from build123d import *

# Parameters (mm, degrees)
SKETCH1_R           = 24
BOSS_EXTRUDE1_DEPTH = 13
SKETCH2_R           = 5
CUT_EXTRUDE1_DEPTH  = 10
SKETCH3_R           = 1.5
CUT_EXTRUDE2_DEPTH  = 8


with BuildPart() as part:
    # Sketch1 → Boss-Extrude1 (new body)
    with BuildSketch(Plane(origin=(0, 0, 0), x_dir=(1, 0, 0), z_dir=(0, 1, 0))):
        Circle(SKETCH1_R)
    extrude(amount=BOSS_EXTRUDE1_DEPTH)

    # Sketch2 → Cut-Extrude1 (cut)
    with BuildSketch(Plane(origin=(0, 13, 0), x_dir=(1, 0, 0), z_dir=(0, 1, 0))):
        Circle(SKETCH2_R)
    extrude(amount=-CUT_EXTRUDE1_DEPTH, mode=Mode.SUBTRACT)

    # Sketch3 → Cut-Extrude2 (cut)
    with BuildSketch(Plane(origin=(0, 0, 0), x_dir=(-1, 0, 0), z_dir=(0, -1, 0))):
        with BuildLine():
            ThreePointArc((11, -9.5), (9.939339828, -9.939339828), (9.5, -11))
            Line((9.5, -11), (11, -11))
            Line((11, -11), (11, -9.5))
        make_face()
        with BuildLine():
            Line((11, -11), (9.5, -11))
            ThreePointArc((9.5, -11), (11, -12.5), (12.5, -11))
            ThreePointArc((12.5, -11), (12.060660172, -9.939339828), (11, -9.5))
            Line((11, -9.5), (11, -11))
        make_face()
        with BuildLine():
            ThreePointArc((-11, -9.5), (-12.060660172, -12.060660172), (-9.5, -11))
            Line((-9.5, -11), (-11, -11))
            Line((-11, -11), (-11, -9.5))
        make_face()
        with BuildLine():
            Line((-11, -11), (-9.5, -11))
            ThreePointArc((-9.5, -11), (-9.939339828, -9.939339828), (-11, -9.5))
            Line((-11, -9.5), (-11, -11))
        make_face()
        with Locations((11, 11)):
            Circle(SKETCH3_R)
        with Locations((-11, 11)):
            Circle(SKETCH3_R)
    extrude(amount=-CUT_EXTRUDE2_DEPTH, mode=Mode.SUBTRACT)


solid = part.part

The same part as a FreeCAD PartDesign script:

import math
import FreeCAD as App
import Part
import Sketcher
from FreeCAD import Vector

doc = App.newDocument("Part")
body = doc.addObject("PartDesign::Body", "Body")

# Sketch on XZ plane
sketch1 = body.newObject("Sketcher::SketchObject", "Sketch")
sketch1.AttachmentSupport = (doc.getObject("XZ_Plane"), [""])
sketch1.MapMode = "FlatFace"
sketch1.addGeometry(Part.Circle(Vector(0, 0, 0), Vector(0, 0, 1), 24), False)
sketch1.addConstraint(Sketcher.Constraint("Coincident", 0, 3, -1, 1))
sketch1.addConstraint(Sketcher.Constraint("Diameter", 0, 48.0))
pad1 = body.newObject("PartDesign::Pad", "Pad")
pad1.Profile = sketch1
pad1.Length = 13
pad1.Reversed = True

# Sketch on XZ plane
sketch2 = body.newObject("Sketcher::SketchObject", "Sketch001")
sketch2.AttachmentSupport = (doc.getObject("XZ_Plane"), [""])
sketch2.MapMode = "FlatFace"
sketch2.AttachmentOffset = App.Placement(Vector(0, 0, -13), App.Rotation())
sketch2.addGeometry(Part.Circle(Vector(0, 0, 0), Vector(0, 0, 1), 5), False)
sketch2.addConstraint(Sketcher.Constraint("Coincident", 0, 3, -1, 1))
sketch2.addConstraint(Sketcher.Constraint("Diameter", 0, 10.0))
pocket1 = body.newObject("PartDesign::Pocket", "Pocket")
pocket1.Profile = sketch2
pocket1.Length = 10
pocket1.Reversed = True

# Sketch on XZ plane
sketch3 = body.newObject("Sketcher::SketchObject", "Sketch002")
sketch3.AttachmentSupport = (doc.getObject("XZ_Plane"), [""])
sketch3.MapMode = "FlatFace"
sketch3.addGeometry(Part.ArcOfCircle(Part.Circle(Vector(-11, 11, 0), Vector(0, 0, 1), 1.5), math.radians(-90), math.radians(0)), False)
sketch3.addGeometry(Part.ArcOfCircle(Part.Circle(Vector(-11, 11, 0), Vector(0, 0, 1), 1.5), math.radians(0), math.radians(180)), False)
sketch3.addGeometry(Part.ArcOfCircle(Part.Circle(Vector(-11, 11, 0), Vector(0, 0, 1), 1.5), math.radians(180), math.radians(270)), False)
sketch3.addGeometry(Part.ArcOfCircle(Part.Circle(Vector(11, 11, 0), Vector(0, 0, 1), 1.5), math.radians(-90), math.radians(180)), False)
sketch3.addGeometry(Part.ArcOfCircle(Part.Circle(Vector(11, 11, 0), Vector(0, 0, 1), 1.5), math.radians(180), math.radians(270)), False)
sketch3.addGeometry(Part.Circle(Vector(-11, -11, 0), Vector(0, 0, 1), 1.5), False)
sketch3.addGeometry(Part.Circle(Vector(11, -11, 0), Vector(0, 0, 1), 1.5), False)
sketch3.addConstraint(Sketcher.Constraint("Tangent", 0, 2, 1, 1))
sketch3.addConstraint(Sketcher.Constraint("Tangent", 1, 2, 2, 1))
sketch3.addConstraint(Sketcher.Constraint("Tangent", 2, 2, 0, 1))
sketch3.addConstraint(Sketcher.Constraint("Tangent", 3, 1, 4, 2))
sketch3.addConstraint(Sketcher.Constraint("Coincident", 4, 1, 3, 2))
sketch3.addConstraint(Sketcher.Constraint("Equal", 2, 3))
sketch3.addConstraint(Sketcher.Constraint("Equal", 4, 5))
sketch3.addConstraint(Sketcher.Constraint("Equal", 5, 6))
sketch3.addConstraint(Sketcher.Constraint("Symmetric", 3, 3, 5, 3, -1, 1))
sketch3.addConstraint(Sketcher.Constraint("Symmetric", 0, 3, 6, 3, -1, 1))
sketch3.addConstraint(Sketcher.Constraint("Symmetric", 0, 3, 3, 3, -2))
sketch3.addConstraint(Sketcher.Constraint("Horizontal", 4, 3, 0, 2))
sketch3.addConstraint(Sketcher.Constraint("Horizontal", 0, 2, 1, 2))
sketch3.addConstraint(Sketcher.Constraint("Horizontal", 1, 2, 4, 1))
sketch3.addConstraint(Sketcher.Constraint("Vertical", 5, 3, 2, 2))
sketch3.addConstraint(Sketcher.Constraint("Vertical", 6, 3, 3, 1))
sketch3.addConstraint(Sketcher.Constraint("Diameter", 5, 3.0))
sketch3.addConstraint(Sketcher.Constraint("DistanceX", 0, 3, -1, 1, 11.0))
sketch3.addConstraint(Sketcher.Constraint("DistanceY", -1, 1, 0, 3, 11.0))
pocket2 = body.newObject("PartDesign::Pocket", "Pocket001")
pocket2.Profile = sketch3
pocket2.Length = 8

doc.recompute()
